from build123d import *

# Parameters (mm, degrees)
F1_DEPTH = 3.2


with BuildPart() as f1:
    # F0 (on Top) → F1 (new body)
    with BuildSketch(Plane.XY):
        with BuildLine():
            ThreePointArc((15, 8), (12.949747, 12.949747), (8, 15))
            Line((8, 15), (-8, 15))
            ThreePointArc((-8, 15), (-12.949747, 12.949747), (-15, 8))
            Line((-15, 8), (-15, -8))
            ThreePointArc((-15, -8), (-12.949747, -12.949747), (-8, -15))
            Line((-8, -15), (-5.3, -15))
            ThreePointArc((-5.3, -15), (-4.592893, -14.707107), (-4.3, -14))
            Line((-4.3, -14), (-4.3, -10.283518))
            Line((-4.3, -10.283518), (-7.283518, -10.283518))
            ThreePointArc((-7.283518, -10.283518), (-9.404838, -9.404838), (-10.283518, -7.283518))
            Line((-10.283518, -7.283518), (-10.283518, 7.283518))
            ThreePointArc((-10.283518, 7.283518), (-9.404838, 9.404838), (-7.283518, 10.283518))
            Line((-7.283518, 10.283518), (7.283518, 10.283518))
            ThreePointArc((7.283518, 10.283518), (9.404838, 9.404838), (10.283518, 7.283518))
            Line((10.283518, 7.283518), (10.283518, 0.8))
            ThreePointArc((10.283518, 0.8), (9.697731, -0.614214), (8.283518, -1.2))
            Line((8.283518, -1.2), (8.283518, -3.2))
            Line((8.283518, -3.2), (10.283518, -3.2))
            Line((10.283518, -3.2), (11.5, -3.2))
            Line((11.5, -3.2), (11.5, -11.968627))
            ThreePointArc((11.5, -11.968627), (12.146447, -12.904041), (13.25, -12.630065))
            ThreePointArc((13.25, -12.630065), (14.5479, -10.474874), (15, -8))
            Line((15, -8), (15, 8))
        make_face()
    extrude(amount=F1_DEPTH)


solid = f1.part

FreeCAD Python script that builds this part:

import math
import FreeCAD as App
import Part
import Sketcher
Q = App.Units.Quantity

doc = App.newDocument("Part")
body = doc.addObject("PartDesign::Body", "Body")

# Sketch on XY plane
sketch1 = doc.addObject("Sketcher::SketchObject", "Sketch")
body.addObject(sketch1)
sketch1.AttachmentSupport = (doc.XY_Plane, [""])
sketch1.MapMode = "FlatFace"
sketch1.addGeometry([
    Part.ArcOfCircle(Part.Circle(App.Vector(7.999998, 7.999998, 0), App.Vector(0, 0, 1), 7.000002), math.radians(0.000013), math.radians(89.999987)),  # 0
    Part.LineSegment(App.Vector(8, 15, 0), App.Vector(-8, 15, 0)),  # 1
    Part.ArcOfCircle(Part.Circle(App.Vector(-7.999998, 7.999998, 0), App.Vector(0, 0, 1), 7.000002), math.radians(90.000013), math.radians(179.999987)),  # 2
    Part.LineSegment(App.Vector(-15, 8, 0), App.Vector(-15, -8, 0)),  # 3
    Part.ArcOfCircle(Part.Circle(App.Vector(-7.999998, -7.999998, 0), App.Vector(0, 0, 1), 7.000002), math.radians(-179.999987), math.radians(-90.000013)),  # 4
    Part.LineSegment(App.Vector(-8, -15, 0), App.Vector(-5.3, -15, 0)),  # 5
    Part.ArcOfCircle(Part.Circle(App.Vector(-5.299999, -14.000001, 0), App.Vector(0, 0, 1), 0.999999), math.radians(-90.000043), math.radians(0.000043)),  # 6
    Part.LineSegment(App.Vector(-4.3, -14, 0), App.Vector(-4.3, -10.283518, 0)),  # 7
    Part.LineSegment(App.Vector(-4.3, -10.283518, 0), App.Vector(-7.283518, -10.283518, 0)),  # 8
    Part.ArcOfCircle(Part.Circle(App.Vector(-7.283517, -7.283517, 0), App.Vector(0, 0, 1), 3.000001), math.radians(-179.999978), math.radians(-90.000022)),  # 9
    Part.LineSegment(App.Vector(-10.283518, -7.283518, 0), App.Vector(-10.283518, 7.283518, 0)),  # 10
    Part.ArcOfCircle(Part.Circle(App.Vector(-7.283517, 7.283517, 0), App.Vector(0, 0, 1), 3.000001), math.radians(90.000022), math.radians(179.999978)),  # 11
    Part.LineSegment(App.Vector(-7.283518, 10.283518, 0), App.Vector(7.283518, 10.283518, 0)),  # 12
    Part.ArcOfCircle(Part.Circle(App.Vector(7.283517, 7.283517, 0), App.Vector(0, 0, 1), 3.000001), math.radians(0.000022), math.radians(89.999978)),  # 13
    Part.LineSegment(App.Vector(10.283518, 7.283518, 0), App.Vector(10.283518, 0.8, 0)),  # 14
    Part.ArcOfCircle(Part.Circle(App.Vector(8.283518, 0.8, 0), App.Vector(0, 0, 1), 2), math.radians(-89.999994), math.radians(-0.000006)),  # 15
    Part.LineSegment(App.Vector(8.283518, -1.2, 0), App.Vector(8.283518, -3.2, 0)),  # 16
    Part.LineSegment(App.Vector(8.283518, -3.2, 0), App.Vector(11.5, -3.2, 0)),  # 17
    Part.LineSegment(App.Vector(11.5, -3.2, 0), App.Vector(11.5, -11.968627, 0)),  # 18
    Part.ArcOfCircle(Part.Circle(App.Vector(12.5, -11.968626, 0), App.Vector(0, 0, 1), 1), math.radians(-179.999958), math.radians(-41.409674)),  # 19
    Part.ArcOfCircle(Part.Circle(App.Vector(7.999995, -7.999998, 0), App.Vector(0, 0, 1), 7.000005), math.radians(-41.409605), math.radians(-0.000015)),  # 20
    Part.LineSegment(App.Vector(15, -8, 0), App.Vector(15, 8, 0)),  # 21
], False)
sketch1.addConstraint([
    Sketcher.Constraint("Tangent", 0, 2, 1, 1),
    Sketcher.Constraint("Tangent", 1, 2, 2, 1),
    Sketcher.Constraint("Tangent", 2, 2, 3, 1),
    Sketcher.Constraint("Tangent", 3, 2, 4, 1),
    Sketcher.Constraint("Tangent", 4, 2, 5, 1),
    Sketcher.Constraint("Tangent", 5, 2, 6, 1),
    Sketcher.Constraint("Tangent", 6, 2, 7, 1),
    Sketcher.Constraint("Coincident", 7, 2, 8, 1),
    Sketcher.Constraint("Tangent", 8, 2, 9, 2),
    Sketcher.Constraint("Tangent", 9, 1, 10, 1),
    Sketcher.Constraint("Tangent", 10, 2, 11, 2),
    Sketcher.Constraint("Tangent", 11, 1, 12, 1),
    Sketcher.Constraint("Tangent", 12, 2, 13, 2),
    Sketcher.Constraint("Tangent", 13, 1, 14, 1),
    Sketcher.Constraint("Tangent", 14, 2, 15, 2),
    Sketcher.Constraint("Coincident", 15, 1, 16, 1),
    Sketcher.Constraint("Coincident", 16, 2, 17, 1),
    Sketcher.Constraint("Coincident", 17, 2, 18, 1),
    Sketcher.Constraint("Tangent", 18, 2, 19, 1),
    Sketcher.Constraint("Tangent", 19, 2, 20, 1),
    Sketcher.Constraint("Tangent", 20, 2, 21, 1),
    Sketcher.Constraint("Tangent", 21, 2, 0, 1),
    Sketcher.Constraint("Horizontal", 1),
    Sketcher.Constraint("Vertical", 3),
    Sketcher.Constraint("Horizontal", 5),
    Sketcher.Constraint("Vertical", 7),
    Sketcher.Constraint("Horizontal", 8),
    Sketcher.Constraint("Vertical", 10),
    Sketcher.Constraint("Horizontal", 12),
    Sketcher.Constraint("Vertical", 14),
    Sketcher.Constraint("Vertical", 16),
    Sketcher.Constraint("Horizontal", 17),
    Sketcher.Constraint("Vertical", 18),
    Sketcher.Constraint("Vertical", 21),
    Sketcher.Constraint("Equal", 0, 2),
    Sketcher.Constraint("Equal", 2, 4),
    Sketcher.Constraint("Equal", 9, 11),
    Sketcher.Constraint("Equal", 11, 13),
    Sketcher.Constraint("Equal", 6, 19),
    Sketcher.Constraint("Symmetric", 0, 3, 4, 3, -1, 1),
    Sketcher.Constraint("Symmetric", 9, 3, 13, 3, -1, 1),
    Sketcher.Constraint("Symmetric", 2, 3, 20, 3, -1, 1),
    Sketcher.Constraint("Equal", 1, 3),
    Sketcher.Constraint("Equal", 12, 10),
    Sketcher.Constraint("Radius", 0, Q("7.000002 mm")),
    Sketcher.Constraint("Radius", 6, Q("0.999999 mm")),
    Sketcher.Constraint("Radius", 9, Q("3.000001 mm")),
    Sketcher.Constraint("Radius", 15, Q("2 mm")),
    Sketcher.Constraint("DistanceX", 1, 2, 1, 1, Q("16 mm")),
    Sketcher.Constraint("DistanceY", 16, 2, 16, 1, Q("2 mm")),
    Sketcher.Constraint("DistanceX", 5, 1, 5, 2, Q("2.7 mm")),
    Sketcher.Constraint("DistanceX", 15, 1, 14, 2, Q("2 mm")),
    Sketcher.Constraint("DistanceY", -1, 1, 15, 3, Q("0.8 mm")),
    Sketcher.Constraint("DistanceX", -1, 1, 19, 3, Q("12.5 mm")),
    Sketcher.Constraint("DistanceX", 8, 2, 8, 1, Q("2.983518 mm")),
])
pad1 = doc.addObject("PartDesign::Pad", "Pad")
body.addObject(pad1)
pad1.Profile = sketch1
pad1.Length = 3.2

doc.recompute()
